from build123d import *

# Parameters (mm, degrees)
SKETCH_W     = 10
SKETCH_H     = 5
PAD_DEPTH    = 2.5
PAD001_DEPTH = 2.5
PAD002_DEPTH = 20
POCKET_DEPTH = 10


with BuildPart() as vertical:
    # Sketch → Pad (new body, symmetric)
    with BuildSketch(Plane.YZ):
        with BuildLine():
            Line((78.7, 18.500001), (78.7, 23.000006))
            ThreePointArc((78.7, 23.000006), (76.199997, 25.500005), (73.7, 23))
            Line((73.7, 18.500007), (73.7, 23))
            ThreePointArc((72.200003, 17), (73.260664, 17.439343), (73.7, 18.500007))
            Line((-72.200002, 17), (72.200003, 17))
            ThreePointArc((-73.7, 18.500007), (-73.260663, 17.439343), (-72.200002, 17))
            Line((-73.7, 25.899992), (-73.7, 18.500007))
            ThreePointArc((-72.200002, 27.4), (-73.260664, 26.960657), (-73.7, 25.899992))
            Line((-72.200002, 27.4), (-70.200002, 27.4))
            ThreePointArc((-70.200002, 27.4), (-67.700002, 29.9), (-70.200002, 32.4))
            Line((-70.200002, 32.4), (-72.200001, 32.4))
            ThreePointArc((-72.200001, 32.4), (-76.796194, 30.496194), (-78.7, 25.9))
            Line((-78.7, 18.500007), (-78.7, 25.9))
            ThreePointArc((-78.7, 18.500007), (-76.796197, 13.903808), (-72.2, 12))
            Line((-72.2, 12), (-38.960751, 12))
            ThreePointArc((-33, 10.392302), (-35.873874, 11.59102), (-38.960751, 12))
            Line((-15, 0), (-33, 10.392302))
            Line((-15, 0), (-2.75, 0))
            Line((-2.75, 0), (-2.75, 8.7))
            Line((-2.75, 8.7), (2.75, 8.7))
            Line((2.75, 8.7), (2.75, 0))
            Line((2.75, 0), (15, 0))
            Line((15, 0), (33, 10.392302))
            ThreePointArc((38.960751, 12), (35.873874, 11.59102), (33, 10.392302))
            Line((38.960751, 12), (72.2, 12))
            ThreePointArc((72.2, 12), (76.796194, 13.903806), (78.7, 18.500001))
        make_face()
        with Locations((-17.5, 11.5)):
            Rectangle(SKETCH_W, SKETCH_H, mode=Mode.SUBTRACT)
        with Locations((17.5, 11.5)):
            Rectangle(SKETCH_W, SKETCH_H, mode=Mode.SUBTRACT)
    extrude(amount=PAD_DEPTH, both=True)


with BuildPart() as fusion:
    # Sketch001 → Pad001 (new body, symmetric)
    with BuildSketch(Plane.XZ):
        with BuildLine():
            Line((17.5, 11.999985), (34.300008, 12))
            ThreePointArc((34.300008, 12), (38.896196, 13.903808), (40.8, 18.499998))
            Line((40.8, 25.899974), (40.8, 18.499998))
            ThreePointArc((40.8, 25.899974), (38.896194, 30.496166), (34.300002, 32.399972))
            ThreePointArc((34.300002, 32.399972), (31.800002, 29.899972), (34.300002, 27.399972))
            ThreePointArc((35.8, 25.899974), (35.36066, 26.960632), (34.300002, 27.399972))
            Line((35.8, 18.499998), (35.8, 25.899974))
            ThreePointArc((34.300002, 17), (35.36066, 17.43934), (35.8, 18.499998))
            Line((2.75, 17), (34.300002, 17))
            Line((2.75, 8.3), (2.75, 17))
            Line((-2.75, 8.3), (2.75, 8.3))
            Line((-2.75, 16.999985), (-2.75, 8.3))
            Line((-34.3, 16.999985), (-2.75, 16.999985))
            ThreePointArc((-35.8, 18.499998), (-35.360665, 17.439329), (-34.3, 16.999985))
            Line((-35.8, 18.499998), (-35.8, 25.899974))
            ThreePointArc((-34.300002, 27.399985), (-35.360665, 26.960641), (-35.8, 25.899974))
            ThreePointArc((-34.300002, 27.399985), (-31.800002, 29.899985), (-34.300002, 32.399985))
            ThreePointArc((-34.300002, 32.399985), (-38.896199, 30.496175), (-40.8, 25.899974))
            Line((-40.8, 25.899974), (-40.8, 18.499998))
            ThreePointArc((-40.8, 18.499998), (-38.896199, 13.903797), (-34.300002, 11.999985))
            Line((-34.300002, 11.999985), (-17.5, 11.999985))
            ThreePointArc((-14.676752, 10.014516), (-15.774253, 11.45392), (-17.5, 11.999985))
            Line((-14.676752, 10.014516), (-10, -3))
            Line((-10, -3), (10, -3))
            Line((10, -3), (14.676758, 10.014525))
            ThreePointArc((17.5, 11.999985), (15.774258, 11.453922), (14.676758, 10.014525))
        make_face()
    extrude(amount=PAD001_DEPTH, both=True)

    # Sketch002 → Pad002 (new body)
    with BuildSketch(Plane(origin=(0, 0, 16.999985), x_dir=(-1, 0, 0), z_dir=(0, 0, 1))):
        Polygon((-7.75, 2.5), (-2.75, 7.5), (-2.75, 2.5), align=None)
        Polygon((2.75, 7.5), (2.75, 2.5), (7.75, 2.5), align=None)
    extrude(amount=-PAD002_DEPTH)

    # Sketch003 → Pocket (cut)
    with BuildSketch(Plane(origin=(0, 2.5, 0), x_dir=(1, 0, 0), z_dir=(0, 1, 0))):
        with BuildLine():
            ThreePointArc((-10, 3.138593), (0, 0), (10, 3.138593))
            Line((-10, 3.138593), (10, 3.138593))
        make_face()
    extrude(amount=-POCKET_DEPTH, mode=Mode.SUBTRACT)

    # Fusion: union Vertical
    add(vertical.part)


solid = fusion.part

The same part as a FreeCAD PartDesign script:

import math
import FreeCAD as App
import Part
import Sketcher

V = App.Vector
Q = App.Units.Quantity

doc = App.newDocument("Part")
body = doc.addObject("PartDesign::Body", "Body")

# Sketch on YZ plane
sketch1 = body.newObject("Sketcher::SketchObject", "Sketch")
sketch1.AttachmentSupport = (doc.getObject("YZ_Plane"), [""])
sketch1.MapMode = "FlatFace"
sketch1.addGeometry([
    Part.LineSegment(V(78.7, 18.5, 0), V(78.7, 23, 0)),  # 0
    Part.ArcOfCircle(Part.Circle(V(76.2, 23, 0), V(0, 0, 1), 2.5), math.radians(0), math.radians(180)),  # 1
    Part.LineSegment(V(73.7, 23, 0), V(73.7, 18.5, 0)),  # 2
    Part.ArcOfCircle(Part.Circle(V(72.2, 18.5, 0), V(0, 0, 1), 1.5), math.radians(-90), math.radians(0)),  # 3
    Part.LineSegment(V(72.2, 17, 0), V(-72.2, 17, 0)),  # 4
    Part.ArcOfCircle(Part.Circle(V(-72.2, 18.5, 0), V(0, 0, 1), 1.5), math.radians(180), math.radians(270)),  # 5
    Part.LineSegment(V(-73.7, 18.5, 0), V(-73.7, 25.9, 0)),  # 6
    Part.ArcOfCircle(Part.Circle(V(-72.2, 25.9, 0), V(0, 0, 1), 1.5), math.radians(90), math.radians(180)),  # 7
    Part.LineSegment(V(-72.2, 27.4, 0), V(-70.2, 27.4, 0)),  # 8
    Part.ArcOfCircle(Part.Circle(V(-70.2, 29.9, 0), V(0, 0, 1), 2.5), math.radians(-90), math.radians(90)),  # 9
    Part.LineSegment(V(-70.2, 32.4, 0), V(-72.2, 32.4, 0)),  # 10
    Part.ArcOfCircle(Part.Circle(V(-72.2, 25.9, 0), V(0, 0, 1), 6.5), math.radians(90), math.radians(180)),  # 11
    Part.LineSegment(V(-78.7, 25.9, 0), V(-78.7, 18.5, 0)),  # 12
    Part.ArcOfCircle(Part.Circle(V(-72.2, 18.5, 0), V(0, 0, 1), 6.5), math.radians(180), math.radians(270)),  # 13
    Part.LineSegment(V(-72.2, 12, 0), V(-39, 12, 0)),  # 14
    Part.ArcOfCircle(Part.Circle(V(-39, 0.1, 0), V(0, 0, 1), 11.9), math.radians(60), math.radians(90)),  # 15
    Part.LineSegment(V(-33, 10.4, 0), V(-15, 0, 0)),  # 16
    Part.LineSegment(V(-15, 0, 0), V(-2.8, 0, 0)),  # 17
    Part.LineSegment(V(-2.8, 0, 0), V(-2.8, 8.7, 0)),  # 18
    Part.LineSegment(V(-2.8, 8.7, 0), V(2.8, 8.7, 0)),  # 19
    Part.LineSegment(V(2.8, 8.7, 0), V(2.8, 0, 0)),  # 20
    Part.LineSegment(V(2.8, 0, 0), V(15, 0, 0)),  # 21
    Part.LineSegment(V(15, 0, 0), V(33, 10.4, 0)),  # 22
    Part.ArcOfCircle(Part.Circle(V(39, 0.1, 0), V(0, 0, 1), 11.9), math.radians(90), math.radians(120)),  # 23
    Part.LineSegment(V(39, 12, 0), V(72.2, 12, 0)),  # 24
    Part.ArcOfCircle(Part.Circle(V(72.2, 18.5, 0), V(0, 0, 1), 6.5), math.radians(-90), math.radians(0)),  # 25
    Part.LineSegment(V(-12.5, 9, 0), V(-22.5, 9, 0)),  # 26
    Part.LineSegment(V(-22.5, 9, 0), V(-22.5, 14, 0)),  # 27
    Part.LineSegment(V(-22.5, 14, 0), V(-12.5, 14, 0)),  # 28
    Part.LineSegment(V(-12.5, 14, 0), V(-12.5, 9, 0)),  # 29
    Part.LineSegment(V(22.5, 9, 0), V(12.5, 9, 0)),  # 30
    Part.LineSegment(V(12.5, 9, 0), V(12.5, 14, 0)),  # 31
    Part.LineSegment(V(12.5, 14, 0), V(22.5, 14, 0)),  # 32
    Part.LineSegment(V(22.5, 14, 0), V(22.5, 9, 0)),  # 33
], False)
sketch1.addConstraint([
    Sketcher.Constraint("Tangent", 0, 2, 1, 1),
    Sketcher.Constraint("Coincident", 1, 2, 2, 1),
    Sketcher.Constraint("Coincident", 2, 2, 3, 2),
    Sketcher.Constraint("Tangent", 3, 1, 4, 1),
    Sketcher.Constraint("Tangent", 4, 2, 5, 2),
    Sketcher.Constraint("Coincident", 5, 1, 6, 1),
    Sketcher.Constraint("Coincident", 6, 2, 7, 2),
    Sketcher.Constraint("Tangent", 7, 1, 8, 1),
    Sketcher.Constraint("Tangent", 8, 2, 9, 1),
    Sketcher.Constraint("Tangent", 9, 2, 10, 1),
    Sketcher.Constraint("Tangent", 10, 2, 11, 1),
    Sketcher.Constraint("Tangent", 11, 2, 12, 1),
    Sketcher.Constraint("Tangent", 12, 2, 13, 1),
    Sketcher.Constraint("Tangent", 13, 2, 14, 1),
    Sketcher.Constraint("Tangent", 14, 2, 15, 2),
    Sketcher.Constraint("Coincident", 15, 1, 16, 1),
    Sketcher.Constraint("Coincident", 16, 2, 17, 1),
    Sketcher.Constraint("Coincident", 17, 2, 18, 1),
    Sketcher.Constraint("Coincident", 18, 2, 19, 1),
    Sketcher.Constraint("Coincident", 19, 2, 20, 1),
    Sketcher.Constraint("Coincident", 20, 2, 21, 1),
    Sketcher.Constraint("Coincident", 21, 2, 22, 1),
    Sketcher.Constraint("Coincident", 22, 2, 23, 2),
    Sketcher.Constraint("Tangent", 23, 1, 24, 1),
    Sketcher.Constraint("Tangent", 24, 2, 25, 1),
    Sketcher.Constraint("Tangent", 25, 2, 0, 1),
    Sketcher.Constraint("Coincident", 26, 2, 27, 1),
    Sketcher.Constraint("Coincident", 27, 2, 28, 1),
    Sketcher.Constraint("Coincident", 28, 2, 29, 1),
    Sketcher.Constraint("Coincident", 29, 2, 26, 1),
    Sketcher.Constraint("Coincident", 30, 2, 31, 1),
    Sketcher.Constraint("Coincident", 31, 2, 32, 1),
    Sketcher.Constraint("Coincident", 32, 2, 33, 1),
    Sketcher.Constraint("Coincident", 33, 2, 30, 1),
    Sketcher.Constraint("Vertical", 0),
    Sketcher.Constraint("Vertical", 2),
    Sketcher.Constraint("Horizontal", 4),
    Sketcher.Constraint("Vertical", 6),
    Sketcher.Constraint("Horizontal", 8),
    Sketcher.Constraint("Horizontal", 10),
    Sketcher.Constraint("Vertical", 12),
    Sketcher.Constraint("Horizontal", 14),
    Sketcher.Constraint("Horizontal", 17),
    Sketcher.Constraint("Vertical", 18),
    Sketcher.Constraint("Horizontal", 19),
    Sketcher.Constraint("Vertical", 20),
    Sketcher.Constraint("Horizontal", 21),
    Sketcher.Constraint("Horizontal", 24),
    Sketcher.Constraint("Horizontal", 26),
    Sketcher.Constraint("Vertical", 27),
    Sketcher.Constraint("Horizontal", 28),
    Sketcher.Constraint("Vertical", 29),
    Sketcher.Constraint("Horizontal", 30),
    Sketcher.Constraint("Vertical", 31),
    Sketcher.Constraint("Horizontal", 32),
    Sketcher.Constraint("Vertical", 33),
    Sketcher.Constraint("Coincident", 11, 3, 7, 3),
    Sketcher.Constraint("Coincident", 13, 3, 5, 3),
    Sketcher.Constraint("Coincident", 25, 3, 3, 3),
    Sketcher.Constraint("Equal", 3, 5),
    Sketcher.Constraint("Equal", 5, 7),
    Sketcher.Constraint("Equal", 1, 9),
    Sketcher.Constraint("Equal", 15, 23),
    Sketcher.Constraint("Symmetric", 17, 2, 20, 2, -1, 1),
    Sketcher.Constraint("Symmetric", 2, 2, 5, 1, -2),
    Sketcher.Constraint("Symmetric", 16, 2, 21, 2, -2),
    Sketcher.Constraint("Symmetric", 15, 1, 22, 2, -2),
    Sketcher.Constraint("Symmetric", 29, 2, 30, 2, -2),
    Sketcher.Constraint("Symmetric", 27, 2, 32, 2, -2),
    Sketcher.Constraint("Horizontal", 5, 1, 12, 2),
    Sketcher.Constraint("Radius", 1, 2.5),
    Sketcher.Constraint("Radius", 3, 1.499999),
    Sketcher.Constraint("DistanceX", 8, 1, 8, 2, 2.0),
    Sketcher.Constraint("DistanceX", 26, 2, 26, 1, 10.0),
    Sketcher.Constraint("DistanceY", 27, 1, 27, 2, 5.0),
    Sketcher.Constraint("Angle", 16, Q("-29.999993 deg")),
    Sketcher.Constraint("DistanceX", 19, 1, 19, 2, 5.5),
    Sketcher.Constraint("DistanceY", 18, 1, 18, 2, 8.7),
    Sketcher.Constraint("DistanceY", -1, 1, 1, 2, 23.0),
    Sketcher.Constraint("DistanceY", -1, 1, 3, 1, 17.0),
    Sketcher.Constraint("DistanceX", 15, 1, -1, 1, 33.0),
    Sketcher.Constraint("DistanceX", 16, 2, -1, 1, 15.0),
    Sketcher.Constraint("DistanceY", -1, 1, 26, 2, 9.0),
    Sketcher.Constraint("DistanceX", -1, 1, 1, 3, 76.2),
    Sketcher.Constraint("DistanceY", -1, 1, 7, 3, 25.900001),
    Sketcher.Constraint("DistanceX", 26, 2, -1, 1, 22.5),
    Sketcher.Constraint("DistanceY", 2, 2, 1, 3, 4.499998),
    Sketcher.Constraint("Radius", 15, 11.853992),
    Sketcher.Constraint("DistanceY", 6, 1, 6, 2, 7.399985),
])
pad1 = body.newObject("PartDesign::Pad", "Pad")
pad1.Profile = sketch1
pad1.Length = 5
pad1.Midplane = True
body2 = doc.addObject("PartDesign::Body", "Body001")
body2.AllowCompound = True

# Sketch on XZ plane
sketch2 = body2.newObject("Sketcher::SketchObject", "Sketch001")
sketch2.AttachmentSupport = (doc.getObject("XZ_Plane001"), [""])
sketch2.MapMode = "FlatFace"
sketch2.addGeometry([
    Part.LineSegment(V(17.5, 11.999985, 0), V(34.300008, 12, 0)),  # 0
    Part.ArcOfCircle(Part.Circle(V(34.3, 18.5, 0), V(0, 0, 1), 6.5), math.radians(-89.999927), math.radians(-0.00002)),  # 1
    Part.LineSegment(V(40.8, 18.499998, 0), V(40.8, 25.899974, 0)),  # 2
    Part.ArcOfCircle(Part.Circle(V(34.3, 25.899972, 0), V(0, 0, 1), 6.5), math.radians(0.00002), math.radians(89.99998)),  # 3
    Part.ArcOfCircle(Part.Circle(V(34.300002, 29.899972, 0), V(0, 0, 1), 2.5), math.radians(90), math.radians(270)),  # 4
    Part.ArcOfCircle(Part.Circle(V(34.299999, 25.899971, 0), V(0, 0, 1), 1.500001), math.radians(0.000099), math.radians(89.999901)),  # 5
    Part.LineSegment(V(35.8, 25.899974, 0), V(35.8, 18.499998, 0)),  # 6
    Part.ArcOfCircle(Part.Circle(V(34.299999, 18.500001, 0), V(0, 0, 1), 1.500001), math.radians(-89.999901), math.radians(-0.000099)),  # 7
    Part.LineSegment(V(34.300002, 17, 0), V(2.75, 17, 0)),  # 8
    Part.LineSegment(V(2.75, 17, 0), V(2.75, 8.3, 0)),  # 9
    Part.LineSegment(V(2.75, 8.3, 0), V(-2.75, 8.3, 0)),  # 10
    Part.LineSegment(V(-2.75, 8.3, 0), V(-2.75, 16.999985, 0)),  # 11
    Part.LineSegment(V(-2.75, 16.999985, 0), V(-34.3, 16.999985, 0)),  # 12
    Part.ArcOfCircle(Part.Circle(V(-34.300001, 18.499984, 0), V(0, 0, 1), 1.499999), math.radians(179.999461), math.radians(270.000043)),  # 13
    Part.LineSegment(V(-35.8, 18.499998, 0), V(-35.8, 25.899974, 0)),  # 14
    Part.ArcOfCircle(Part.Circle(V(-34.300001, 25.899986, 0), V(0, 0, 1), 1.499999), math.radians(90.000034), math.radians(180.000463)),  # 15
    Part.ArcOfCircle(Part.Circle(V(-34.300002, 29.899985, 0), V(0, 0, 1), 2.5), math.radians(-90), math.radians(90)),  # 16
    Part.ArcOfCircle(Part.Circle(V(-34.300001, 25.899986, 0), V(0, 0, 1), 6.499999), math.radians(90.000005), math.radians(180.00011)),  # 17
    Part.LineSegment(V(-40.8, 25.899974, 0), V(-40.8, 18.499998, 0)),  # 18
    Part.ArcOfCircle(Part.Circle(V(-34.299998, 18.499987, 0), V(0, 0, 1), 6.500002), math.radians(179.999903), math.radians(269.999965)),  # 19
    Part.LineSegment(V(-34.300002, 11.999985, 0), V(-17.5, 11.999985, 0)),  # 20
    Part.ArcOfCircle(Part.Circle(V(-17.500001, 8.999984, 0), V(0, 0, 1), 3.000001), math.radians(19.765864), math.radians(89.99999)),  # 21
    Part.LineSegment(V(-14.676752, 10.014516, 0), V(-10, -3, 0)),  # 22
    Part.LineSegment(V(-10, -3, 0), V(10, -3, 0)),  # 23
    Part.LineSegment(V(10, -3, 0), V(14.676758, 10.014525, 0)),  # 24
    Part.ArcOfCircle(Part.Circle(V(17.500002, 8.999985, 0), V(0, 0, 1), 3), math.radians(90.000041), math.radians(160.233975)),  # 25
], False)
sketch2.addConstraint([
    Sketcher.Constraint("Coincident", 0, 2, 1, 1),
    Sketcher.Constraint("Coincident", 1, 2, 2, 1),
    Sketcher.Constraint("Coincident", 2, 2, 3, 1),
    Sketcher.Constraint("Coincident", 3, 2, 4, 1),
    Sketcher.Constraint("Coincident", 4, 2, 5, 2),
    Sketcher.Constraint("Coincident", 5, 1, 6, 1),
    Sketcher.Constraint("Coincident", 6, 2, 7, 2),
    Sketcher.Constraint("Coincident", 7, 1, 8, 1),
    Sketcher.Constraint("Coincident", 8, 2, 9, 1),
    Sketcher.Constraint("Coincident", 9, 2, 10, 1),
    Sketcher.Constraint("Coincident", 10, 2, 11, 1),
    Sketcher.Constraint("Coincident", 11, 2, 12, 1),
    Sketcher.Constraint("Coincident", 12, 2, 13, 2),
    Sketcher.Constraint("Coincident", 13, 1, 14, 1),
    Sketcher.Constraint("Coincident", 14, 2, 15, 2),
    Sketcher.Constraint("Coincident", 15, 1, 16, 1),
    Sketcher.Constraint("Coincident", 16, 2, 17, 1),
    Sketcher.Constraint("Coincident", 17, 2, 18, 1),
    Sketcher.Constraint("Coincident", 18, 2, 19, 1),
    Sketcher.Constraint("Coincident", 19, 2, 20, 1),
    Sketcher.Constraint("Coincident", 20, 2, 21, 2),
    Sketcher.Constraint("Coincident", 21, 1, 22, 1),
    Sketcher.Constraint("Coincident", 22, 2, 23, 1),
    Sketcher.Constraint("Coincident", 23, 2, 24, 1),
    Sketcher.Constraint("Coincident", 24, 2, 25, 2),
    Sketcher.Constraint("Coincident", 25, 1, 0, 1),
    Sketcher.Constraint("Vertical", 2),
    Sketcher.Constraint("Vertical", 6),
    Sketcher.Constraint("Horizontal", 8),
    Sketcher.Constraint("Vertical", 9),
    Sketcher.Constraint("Horizontal", 10),
    Sketcher.Constraint("Vertical", 11),
    Sketcher.Constraint("Horizontal", 12),
    Sketcher.Constraint("Vertical", 14),
    Sketcher.Constraint("Vertical", 18),
    Sketcher.Constraint("Horizontal", 20),
    Sketcher.Constraint("Horizontal", 23),
    Sketcher.Constraint("Coincident", 5, 3, 3, 3),
    Sketcher.Constraint("Coincident", 7, 3, 1, 3),
    Sketcher.Constraint("Coincident", 17, 3, 15, 3),
    Sketcher.Constraint("Coincident", 19, 3, 13, 3),
    Sketcher.Constraint("Radius", 21, 3.000001),
    Sketcher.Constraint("Radius", 25, 3.0),
    Sketcher.Constraint("Radius", 1, 6.5),
    Sketcher.Constraint("Radius", 3, 6.5),
    Sketcher.Constraint("Radius", 4, 2.5),
    Sketcher.Constraint("Radius", 13, 1.499999),
    Sketcher.Constraint("Radius", 15, 1.499999),
    Sketcher.Constraint("Radius", 16, 2.5),
    Sketcher.Constraint("DistanceX", 23, 1, 23, 2, 20.0),
    Sketcher.Constraint("DistanceX", 10, 2, 10, 1, 5.5),
    Sketcher.Constraint("DistanceX", 20, 1, 20, 2, 16.800002),
    Sketcher.Constraint("DistanceY", 9, 2, 9, 1, 8.7),
    Sketcher.Constraint("DistanceY", -1, 1, 0, 2, 12.0),
    Sketcher.Constraint("DistanceX", 22, 2, -1, 1, 10.0),
    Sketcher.Constraint("DistanceY", 22, 2, -1, 1, 3.0),
    Sketcher.Constraint("DistanceY", 2, 2, 4, 3, 3.999998),
    Sketcher.Constraint("DistanceY", 5, 1, 4, 3, 3.999998),
    Sketcher.Constraint("DistanceY", 25, 3, 11, 2, 8.0),
    Sketcher.Constraint("DistanceX", 8, 2, 8, 1, 31.550002),
    Sketcher.Constraint("DistanceX", 12, 2, 12, 1, 31.55),
    Sketcher.Constraint("DistanceX", -1, 1, 1, 3, 34.3),
    Sketcher.Constraint("DistanceX", 13, 3, -1, 1, 34.300001),
    Sketcher.Constraint("DistanceX", 21, 3, -1, 1, 17.500001),
    Sketcher.Constraint("DistanceY", -1, 1, 1, 2, 18.499998),
    Sketcher.Constraint("DistanceY", -1, 1, 6, 2, 18.499998),
    Sketcher.Constraint("DistanceX", 12, 2, -1, 1, 34.3),
    Sketcher.Constraint("DistanceY", -1, 1, 13, 1, 18.499998),
    Sketcher.Constraint("DistanceY", -1, 1, 18, 2, 18.499998),
    Sketcher.Constraint("DistanceX", 20, 2, -1, 1, 17.5),
    Sketcher.Constraint("DistanceX", -1, 1, 25, 1, 17.5),
    Sketcher.Constraint("DistanceY", 13, 3, 16, 3, 11.400001),
    Sketcher.Constraint("DistanceX", 16, 3, 5, 3, 68.600001),
    Sketcher.Constraint("DistanceX", 25, 3, 4, 3, 16.8),
    Sketcher.Constraint("DistanceX", 4, 2, 5, 1, 1.499998),
    Sketcher.Constraint("DistanceX", 4, 3, 5, 1, 1.499998),
    Sketcher.Constraint("Distance", 0, 16.800008),
    Sketcher.Constraint("DistanceY", 2, 1, 2, 2, 7.399976),
    Sketcher.Constraint("DistanceY", 11, 1, 11, 2, 8.699985),
    Sketcher.Constraint("DistanceY", 14, 1, 14, 2, 7.399976),
    Sketcher.Constraint("DistanceY", 18, 2, 18, 1, 7.399976),
    Sketcher.Constraint("DistanceX", 21, 3, 21, 1, 2.823249),
    Sketcher.Constraint("DistanceY", 25, 3, 24, 2, 1.01454),
    Sketcher.Constraint("DistanceX", -1, 1, 3, 2, 34.300002),
    Sketcher.Constraint("DistanceX", 15, 1, -1, 1, 34.300002),
    Sketcher.Constraint("DistanceX", 16, 2, -1, 1, 34.300002),
])
pad2 = body2.newObject("PartDesign::Pad", "Pad001")
pad2.Profile = sketch2
pad2.Length = 5
pad2.Midplane = True

# Sketch on XY plane
sketch3 = body2.newObject("Sketcher::SketchObject", "Sketch002")
sketch3.AttachmentSupport = (doc.getObject("XY_Plane001"), [""])
sketch3.MapMode = "FlatFace"
sketch3.AttachmentOffset = App.Placement(V(0, 0, 16.999985), App.Rotation())
sketch3.addGeometry([
    Part.LineSegment(V(3, -8, 0), V(8, -2, 0)),  # 0
    Part.LineSegment(V(8, -2, 0), V(3, -2, 0)),  # 1
    Part.LineSegment(V(3, -2, 0), V(3, -8, 0)),  # 2
    Part.LineSegment(V(-3, -8, 0), V(-3, -2, 0)),  # 3
    Part.LineSegment(V(-3, -2, 0), V(-8, -2, 0)),  # 4
    Part.LineSegment(V(-8, -2, 0), V(-3, -8, 0)),  # 5
], False)
sketch3.addConstraint([
    Sketcher.Constraint("Coincident", 0, 2, 1, 1),
    Sketcher.Constraint("Coincident", 1, 2, 2, 1),
    Sketcher.Constraint("Coincident", 2, 2, 0, 1),
    Sketcher.Constraint("Coincident", 3, 2, 4, 1),
    Sketcher.Constraint("Coincident", 4, 2, 5, 1),
    Sketcher.Constraint("Coincident", 5, 2, 3, 1),
    Sketcher.Constraint("Horizontal", 1),
    Sketcher.Constraint("Vertical", 2),
    Sketcher.Constraint("Vertical", 3),
    Sketcher.Constraint("Horizontal", 4),
    Sketcher.Constraint("Symmetric", 1, 2, 3, 2, -2),
    Sketcher.Constraint("Perpendicular", 0, 5),
    Sketcher.Constraint("Horizontal", 2, 2, 5, 2),
    Sketcher.Constraint("Equal", 1, 4),
    Sketcher.Constraint("DistanceX", 1, 2, 1, 1, 5.0),
    Sketcher.Constraint("DistanceY", 0, 2, -1, 1, 2.5),
    Sketcher.Constraint("DistanceX", 3, 2, 1, 2, 5.5),
])
pad3 = body2.newObject("PartDesign::Pad", "Pad002")
pad3.Profile = sketch3
pad3.Length = 20
pad3.Reversed = True

# Sketch on XZ plane
sketch4 = body2.newObject("Sketcher::SketchObject", "Sketch003")
sketch4.AttachmentSupport = (doc.getObject("XZ_Plane001"), [""])
sketch4.MapMode = "FlatFace"
sketch4.AttachmentOffset = App.Placement(V(0, 0, -2.5), App.Rotation())
sketch4.addGeometry([
    Part.ArcOfCircle(Part.Circle(V(0, -18, 0), V(0, 0, 1), 18), math.radians(55), math.radians(125)),
    Part.LineSegment(V(10, -3, 0), V(-10, -3, 0)),
], False)
sketch4.addConstraint([
    Sketcher.Constraint("Coincident", 0, 1, 1, 1),
    Sketcher.Constraint("Coincident", 1, 2, 0, 2),
    Sketcher.Constraint("Horizontal", 1),
    Sketcher.Constraint("PointOnObject", 0, 3, -2),
    Sketcher.Constraint("Radius", 0, 17.500002),
    Sketcher.Constraint("DistanceX", 1, 2, 1, 1, 20.0),
    Sketcher.Constraint("DistanceY", 0, 3, -1, 1, 17.500002),
])
pocket1 = body2.newObject("PartDesign::Pocket", "Pocket")
pocket1.Profile = sketch4
pocket1.Length = 10
pocket1.Reversed = True
doc.recompute()

boolean = body2.newObject("PartDesign::Boolean", "Boolean")
boolean.Type = "Fuse"
boolean.addObjects([body])

doc.recompute()
